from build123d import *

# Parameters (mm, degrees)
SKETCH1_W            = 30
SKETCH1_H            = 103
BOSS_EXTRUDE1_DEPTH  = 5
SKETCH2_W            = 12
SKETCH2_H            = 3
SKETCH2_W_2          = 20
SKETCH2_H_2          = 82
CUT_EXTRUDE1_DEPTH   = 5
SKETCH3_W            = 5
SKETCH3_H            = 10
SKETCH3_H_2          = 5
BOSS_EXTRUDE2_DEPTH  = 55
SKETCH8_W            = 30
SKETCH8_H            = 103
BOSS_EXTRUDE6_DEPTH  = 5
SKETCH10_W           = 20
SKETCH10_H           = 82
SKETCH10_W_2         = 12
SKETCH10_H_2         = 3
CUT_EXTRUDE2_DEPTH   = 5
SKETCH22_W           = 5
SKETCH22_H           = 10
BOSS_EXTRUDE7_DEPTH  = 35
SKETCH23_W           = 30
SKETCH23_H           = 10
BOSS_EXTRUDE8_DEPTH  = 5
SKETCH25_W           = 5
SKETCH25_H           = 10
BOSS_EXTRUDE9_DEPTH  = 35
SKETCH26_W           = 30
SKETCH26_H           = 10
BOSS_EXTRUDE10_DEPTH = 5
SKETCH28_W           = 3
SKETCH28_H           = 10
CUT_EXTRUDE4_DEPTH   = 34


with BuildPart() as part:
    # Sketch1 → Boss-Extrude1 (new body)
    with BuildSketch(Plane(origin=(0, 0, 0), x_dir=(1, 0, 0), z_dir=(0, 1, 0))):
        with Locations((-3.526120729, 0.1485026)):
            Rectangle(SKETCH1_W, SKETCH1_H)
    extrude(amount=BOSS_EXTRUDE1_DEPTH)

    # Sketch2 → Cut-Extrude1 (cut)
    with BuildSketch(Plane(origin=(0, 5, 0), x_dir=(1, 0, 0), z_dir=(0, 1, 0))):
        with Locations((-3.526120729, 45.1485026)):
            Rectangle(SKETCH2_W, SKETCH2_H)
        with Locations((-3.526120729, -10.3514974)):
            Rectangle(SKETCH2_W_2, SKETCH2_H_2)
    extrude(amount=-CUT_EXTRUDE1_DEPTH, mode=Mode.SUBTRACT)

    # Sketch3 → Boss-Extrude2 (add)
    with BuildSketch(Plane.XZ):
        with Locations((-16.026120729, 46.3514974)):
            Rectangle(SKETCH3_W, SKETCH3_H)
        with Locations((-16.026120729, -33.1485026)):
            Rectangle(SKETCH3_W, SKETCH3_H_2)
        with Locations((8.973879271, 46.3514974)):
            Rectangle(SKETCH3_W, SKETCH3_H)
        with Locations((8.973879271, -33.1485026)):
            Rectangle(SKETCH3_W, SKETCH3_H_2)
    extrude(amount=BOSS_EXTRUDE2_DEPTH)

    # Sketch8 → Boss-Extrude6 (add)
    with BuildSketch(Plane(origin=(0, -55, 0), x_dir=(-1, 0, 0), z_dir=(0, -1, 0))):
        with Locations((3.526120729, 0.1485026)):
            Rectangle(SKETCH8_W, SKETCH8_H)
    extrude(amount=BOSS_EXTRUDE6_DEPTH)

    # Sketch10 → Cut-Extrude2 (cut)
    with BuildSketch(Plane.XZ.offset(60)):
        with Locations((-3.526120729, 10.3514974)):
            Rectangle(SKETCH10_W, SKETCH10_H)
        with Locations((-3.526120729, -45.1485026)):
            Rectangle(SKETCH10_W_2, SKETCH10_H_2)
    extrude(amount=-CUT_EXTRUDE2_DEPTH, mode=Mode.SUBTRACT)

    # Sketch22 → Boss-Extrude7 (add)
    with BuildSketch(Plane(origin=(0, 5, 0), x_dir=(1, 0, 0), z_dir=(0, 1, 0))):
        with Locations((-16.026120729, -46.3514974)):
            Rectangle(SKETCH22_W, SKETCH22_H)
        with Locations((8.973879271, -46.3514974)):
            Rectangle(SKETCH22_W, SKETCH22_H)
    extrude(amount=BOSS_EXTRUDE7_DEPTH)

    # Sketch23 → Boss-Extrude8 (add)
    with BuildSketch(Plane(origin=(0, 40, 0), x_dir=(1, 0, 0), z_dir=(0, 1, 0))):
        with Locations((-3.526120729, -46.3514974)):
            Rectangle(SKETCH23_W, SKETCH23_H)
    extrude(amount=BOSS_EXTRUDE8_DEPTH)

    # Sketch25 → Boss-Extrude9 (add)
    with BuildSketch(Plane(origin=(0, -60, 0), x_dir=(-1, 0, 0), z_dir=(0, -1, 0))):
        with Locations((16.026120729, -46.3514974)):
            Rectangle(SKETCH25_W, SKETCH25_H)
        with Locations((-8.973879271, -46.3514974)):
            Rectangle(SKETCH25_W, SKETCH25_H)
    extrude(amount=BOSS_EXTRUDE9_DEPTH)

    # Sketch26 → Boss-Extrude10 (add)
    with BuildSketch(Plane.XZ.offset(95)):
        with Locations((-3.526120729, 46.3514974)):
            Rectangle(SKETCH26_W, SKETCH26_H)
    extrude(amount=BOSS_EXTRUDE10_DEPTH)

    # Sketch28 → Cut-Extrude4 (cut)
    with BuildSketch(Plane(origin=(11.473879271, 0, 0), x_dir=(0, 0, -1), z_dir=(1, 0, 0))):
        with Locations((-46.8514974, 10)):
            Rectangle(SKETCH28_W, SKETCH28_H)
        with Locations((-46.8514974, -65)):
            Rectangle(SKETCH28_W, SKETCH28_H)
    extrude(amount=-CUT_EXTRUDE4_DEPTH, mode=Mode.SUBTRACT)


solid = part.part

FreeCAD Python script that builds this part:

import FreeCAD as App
import Part
import Sketcher

doc = App.newDocument("Part")
params = doc.addObject("Spreadsheet::Sheet", "Params")
for row, (alias, value) in enumerate([
    ("sketch1_width", "30 mm"),
    ("sketch1_height", "103 mm"),
    ("pad1_length", "5 mm"),
    ("sketch2_width", "12 mm"),
    ("sketch2_width2", "20 mm"),
    ("sketch2_height", "3 mm"),
    ("sketch2_height2", "82 mm"),
    ("pocket1_length", "5 mm"),
    ("sketch3_width", "5 mm"),
    ("sketch3_height", "10 mm"),
    ("pad2_length", "55 mm"),
    ("sketch4_width", "30 mm"),
    ("sketch4_height", "103 mm"),
    ("pad3_length", "5 mm"),
    ("sketch5_width", "20 mm"),
    ("sketch5_width2", "12 mm"),
    ("sketch5_height", "82 mm"),
    ("sketch5_height2", "3 mm"),
    ("pocket2_length", "5 mm"),
    ("sketch6_width", "5 mm"),
    ("sketch6_height", "10 mm"),
    ("pad4_length", "35 mm"),
    ("sketch7_width", "30 mm"),
    ("sketch7_height", "10 mm"),
    ("pad5_length", "5 mm"),
    ("sketch8_width", "5 mm"),
    ("sketch8_height", "10 mm"),
    ("pad6_length", "35 mm"),
    ("sketch9_width", "30 mm"),
    ("sketch9_height", "10 mm"),
    ("pad7_length", "5 mm"),
    ("sketch10_width", "10 mm"),
    ("sketch10_height", "3 mm"),
    ("pocket3_length", "34 mm"),
], start=1):
    params.set(f"A{row}", alias)
    params.set(f"B{row}", "=" + value)
    params.setAlias(f"B{row}", alias)

body = doc.addObject("PartDesign::Body", "Body")

# Sketch on XZ plane
sketch1 = body.newObject("Sketcher::SketchObject", "Sketch")
sketch1.AttachmentSupport = (doc.getObject("XZ_Plane"), [""])
sketch1.MapMode = "FlatFace"
sketch1.addGeometry(Part.LineSegment(App.Vector(-19, -52, 0), App.Vector(-19, 51, 0)), False)
sketch1.addGeometry(Part.LineSegment(App.Vector(-19, 51, 0), App.Vector(11, 51, 0)), False)
sketch1.addGeometry(Part.LineSegment(App.Vector(11, 51, 0), App.Vector(11, -52, 0)), False)
sketch1.addGeometry(Part.LineSegment(App.Vector(11, -52, 0), App.Vector(-19, -52, 0)), False)
sketch1.addConstraint(Sketcher.Constraint("Coincident", 0, 2, 1, 1))
sketch1.addConstraint(Sketcher.Constraint("Coincident", 1, 2, 2, 1))
sketch1.addConstraint(Sketcher.Constraint("Coincident", 2, 2, 3, 1))
sketch1.addConstraint(Sketcher.Constraint("Coincident", 3, 2, 0, 1))
sketch1.addConstraint(Sketcher.Constraint("Vertical", 0))
sketch1.addConstraint(Sketcher.Constraint("Horizontal", 1))
sketch1.addConstraint(Sketcher.Constraint("Vertical", 2))
sketch1.addConstraint(Sketcher.Constraint("Horizontal", 3))
sketch1.addConstraint(Sketcher.Constraint("DistanceX", 1, 1, 1, 2, 30.0))
sketch1.addConstraint(Sketcher.Constraint("DistanceY", 0, 1, 0, 2, 103.0))
sketch1.addConstraint(Sketcher.Constraint("DistanceX", 0, 2, -1, 1, 18.526121))
sketch1.addConstraint(Sketcher.Constraint("DistanceY", -1, 1, 0, 2, 51.351497))
sketch1.setExpression("Constraints[8]", "Params.sketch1_width")
sketch1.setExpression("Constraints[9]", "Params.sketch1_height")
pad1 = body.newObject("PartDesign::Pad", "Pad")
pad1.Profile = sketch1
pad1.setExpression("Length", "Params.pad1_length")
pad1.Reversed = True

# Sketch on XZ plane
sketch2 = body.newObject("Sketcher::SketchObject", "Sketch001")
sketch2.AttachmentSupport = (doc.getObject("XZ_Plane"), [""])
sketch2.MapMode = "FlatFace"
sketch2.AttachmentOffset = App.Placement(App.Vector(0, 0, -5), App.Rotation())
sketch2.addGeometry(Part.LineSegment(App.Vector(-9.5, -46.6, 0), App.Vector(-9.5, -43.6, 0)), False)
sketch2.addGeometry(Part.LineSegment(App.Vector(-9.5, -43.6, 0), App.Vector(2.5, -43.6, 0)), False)
sketch2.addGeometry(Part.LineSegment(App.Vector(2.5, -43.6, 0), App.Vector(2.5, -46.6, 0)), False)
sketch2.addGeometry(Part.LineSegment(App.Vector(2.5, -46.6, 0), App.Vector(-9.5, -46.6, 0)), False)
sketch2.addGeometry(Part.LineSegment(App.Vector(-13.5, -30.6, 0), App.Vector(-13.5, 51.4, 0)), False)
sketch2.addGeometry(Part.LineSegment(App.Vector(-13.5, 51.4, 0), App.Vector(6.5, 51.4, 0)), False)
sketch2.addGeometry(Part.LineSegment(App.Vector(6.5, 51.4, 0), App.Vector(6.5, -30.6, 0)), False)
sketch2.addGeometry(Part.LineSegment(App.Vector(6.5, -30.6, 0), App.Vector(-13.5, -30.6, 0)), False)
sketch2.addConstraint(Sketcher.Constraint("Coincident", 0, 2, 1, 1))
sketch2.addConstraint(Sketcher.Constraint("Coincident", 1, 2, 2, 1))
sketch2.addConstraint(Sketcher.Constraint("Coincident", 2, 2, 3, 1))
sketch2.addConstraint(Sketcher.Constraint("Coincident", 3, 2, 0, 1))
sketch2.addConstraint(Sketcher.Constraint("Coincident", 4, 2, 5, 1))
sketch2.addConstraint(Sketcher.Constraint("Coincident", 5, 2, 6, 1))
sketch2.addConstraint(Sketcher.Constraint("Coincident", 6, 2, 7, 1))
sketch2.addConstraint(Sketcher.Constraint("Coincident", 7, 2, 4, 1))
sketch2.addConstraint(Sketcher.Constraint("Vertical", 0))
sketch2.addConstraint(Sketcher.Constraint("Horizontal", 1))
sketch2.addConstraint(Sketcher.Constraint("Vertical", 2))
sketch2.addConstraint(Sketcher.Constraint("Horizontal", 3))
sketch2.addConstraint(Sketcher.Constraint("Vertical", 4))
sketch2.addConstraint(Sketcher.Constraint("Horizontal", 5))
sketch2.addConstraint(Sketcher.Constraint("Vertical", 6))
sketch2.addConstraint(Sketcher.Constraint("Horizontal", 7))
sketch2.addConstraint(Sketcher.Constraint("DistanceX", 1, 1, 1, 2, 12.0))
sketch2.addConstraint(Sketcher.Constraint("DistanceX", 5, 1, 5, 2, 20.0))
sketch2.addConstraint(Sketcher.Constraint("DistanceY", 0, 1, 0, 2, 3.0))
sketch2.addConstraint(Sketcher.Constraint("DistanceY", 4, 1, 4, 2, 82.0))
sketch2.addConstraint(Sketcher.Constraint("DistanceX", 4, 2, 0, 2, 4.0))
sketch2.addConstraint(Sketcher.Constraint("DistanceY", 0, 2, 4, 2, 95.0))
sketch2.addConstraint(Sketcher.Constraint("DistanceX", 0, 2, -1, 1, 9.526121))
sketch2.addConstraint(Sketcher.Constraint("DistanceY", 0, 2, -1, 1, 43.648503))
sketch2.setExpression("Constraints[16]", "Params.sketch2_width")
sketch2.setExpression("Constraints[17]", "Params.sketch2_width2")
sketch2.setExpression("Constraints[18]", "Params.sketch2_height")
sketch2.setExpression("Constraints[19]", "Params.sketch2_height2")
pocket1 = body.newObject("PartDesign::Pocket", "Pocket")
pocket1.Profile = sketch2
pocket1.setExpression("Length", "Params.pocket1_length")
pocket1.Reversed = True

# Sketch on XZ plane
sketch3 = body.newObject("Sketcher::SketchObject", "Sketch002")
sketch3.AttachmentSupport = (doc.getObject("XZ_Plane"), [""])
sketch3.MapMode = "FlatFace"
sketch3.addGeometry(Part.LineSegment(App.Vector(-18.5, 51.4, 0), App.Vector(-18.5, 41.4, 0)), False)
sketch3.addGeometry(Part.LineSegment(App.Vector(-18.5, 41.4, 0), App.Vector(-13.5, 41.4, 0)), False)
sketch3.addGeometry(Part.LineSegment(App.Vector(-13.5, 41.4, 0), App.Vector(-13.5, 51.4, 0)), False)
sketch3.addGeometry(Part.LineSegment(App.Vector(-13.5, 51.4, 0), App.Vector(-18.5, 51.4, 0)), False)
sketch3.addGeometry(Part.LineSegment(App.Vector(-18.5, -30.6, 0), App.Vector(-18.5, -35.6, 0)), False)
sketch3.addGeometry(Part.LineSegment(App.Vector(-18.5, -35.6, 0), App.Vector(-13.5, -35.6, 0)), False)
sketch3.addGeometry(Part.LineSegment(App.Vector(-13.5, -35.6, 0), App.Vector(-13.5, -30.6, 0)), False)
sketch3.addGeometry(Part.LineSegment(App.Vector(-13.5, -30.6, 0), App.Vector(-18.5, -30.6, 0)), False)
sketch3.addGeometry(Part.LineSegment(App.Vector(6.5, 51.4, 0), App.Vector(6.5, 41.4, 0)), False)
sketch3.addGeometry(Part.LineSegment(App.Vector(6.5, 41.4, 0), App.Vector(11.5, 41.4, 0)), False)
sketch3.addGeometry(Part.LineSegment(App.Vector(11.5, 41.4, 0), App.Vector(11.5, 51.4, 0)), False)
sketch3.addGeometry(Part.LineSegment(App.Vector(11.5, 51.4, 0), App.Vector(6.5, 51.4, 0)), False)
sketch3.addGeometry(Part.LineSegment(App.Vector(6.5, -30.6, 0), App.Vector(6.5, -35.6, 0)), False)
sketch3.addGeometry(Part.LineSegment(App.Vector(6.5, -35.6, 0), App.Vector(11.5, -35.6, 0)), False)
sketch3.addGeometry(Part.LineSegment(App.Vector(11.5, -35.6, 0), App.Vector(11.5, -30.6, 0)), False)
sketch3.addGeometry(Part.LineSegment(App.Vector(11.5, -30.6, 0), App.Vector(6.5, -30.6, 0)), False)
sketch3.addConstraint(Sketcher.Constraint("Coincident", 0, 2, 1, 1))
sketch3.addConstraint(Sketcher.Constraint("Coincident", 1, 2, 2, 1))
sketch3.addConstraint(Sketcher.Constraint("Coincident", 2, 2, 3, 1))
sketch3.addConstraint(Sketcher.Constraint("Coincident", 3, 2, 0, 1))
sketch3.addConstraint(Sketcher.Constraint("Coincident", 4, 2, 5, 1))
sketch3.addConstraint(Sketcher.Constraint("Coincident", 5, 2, 6, 1))
sketch3.addConstraint(Sketcher.Constraint("Coincident", 6, 2, 7, 1))
sketch3.addConstraint(Sketcher.Constraint("Coincident", 7, 2, 4, 1))
sketch3.addConstraint(Sketcher.Constraint("Coincident", 8, 2, 9, 1))
sketch3.addConstraint(Sketcher.Constraint("Coincident", 9, 2, 10, 1))
sketch3.addConstraint(Sketcher.Constraint("Coincident", 10, 2, 11, 1))
sketch3.addConstraint(Sketcher.Constraint("Coincident", 11, 2, 8, 1))
sketch3.addConstraint(Sketcher.Constraint("Coincident", 12, 2, 13, 1))
sketch3.addConstraint(Sketcher.Constraint("Coincident", 13, 2, 14, 1))
sketch3.addConstraint(Sketcher.Constraint("Coincident", 14, 2, 15, 1))
sketch3.addConstraint(Sketcher.Constraint("Coincident", 15, 2, 12, 1))
sketch3.addConstraint(Sketcher.Constraint("Vertical", 0))
sketch3.addConstraint(Sketcher.Constraint("Horizontal", 1))
sketch3.addConstraint(Sketcher.Constraint("Vertical", 2))
sketch3.addConstraint(Sketcher.Constraint("Horizontal", 3))
sketch3.addConstraint(Sketcher.Constraint("Vertical", 4))
sketch3.addConstraint(Sketcher.Constraint("Horizontal", 5))
sketch3.addConstraint(Sketcher.Constraint("Vertical", 6))
sketch3.addConstraint(Sketcher.Constraint("Horizontal", 7))
sketch3.addConstraint(Sketcher.Constraint("Vertical", 8))
sketch3.addConstraint(Sketcher.Constraint("Horizontal", 9))
sketch3.addConstraint(Sketcher.Constraint("Vertical", 10))
sketch3.addConstraint(Sketcher.Constraint("Horizontal", 11))
sketch3.addConstraint(Sketcher.Constraint("Vertical", 12))
sketch3.addConstraint(Sketcher.Constraint("Horizontal", 13))
sketch3.addConstraint(Sketcher.Constraint("Vertical", 14))
sketch3.addConstraint(Sketcher.Constraint("Horizontal", 15))
sketch3.addConstraint(Sketcher.Constraint("Horizontal", 1, 2, 8, 2))
sketch3.addConstraint(Sketcher.Constraint("Horizontal", 3, 2, 10, 2))
sketch3.addConstraint(Sketcher.Constraint("Horizontal", 5, 2, 12, 2))
sketch3.addConstraint(Sketcher.Constraint("Horizontal", 7, 2, 14, 2))
sketch3.addConstraint(Sketcher.Constraint("Vertical", 3, 2, 4, 2))
sketch3.addConstraint(Sketcher.Constraint("Vertical", 2, 2, 5, 2))
sketch3.addConstraint(Sketcher.Constraint("Vertical", 11, 2, 12, 2))
sketch3.addConstraint(Sketcher.Constraint("Vertical", 10, 2, 13, 2))
sketch3.addConstraint(Sketcher.Constraint("Equal", 7, 9))
sketch3.addConstraint(Sketcher.Constraint("Equal", 15, 4))
sketch3.addConstraint(Sketcher.Constraint("DistanceX", 1, 1, 1, 2, 5.0))
sketch3.addConstraint(Sketcher.Constraint("DistanceY", 0, 2, 0, 1, 10.0))
sketch3.addConstraint(Sketcher.Constraint("DistanceY", 4, 2, 0, 2, 77.0))
sketch3.addConstraint(Sketcher.Constraint("DistanceX", 1, 2, 8, 2, 20.0))
sketch3.addConstraint(Sketcher.Constraint("DistanceX", 0, 2, -1, 1, 18.526121))
sketch3.addConstraint(Sketcher.Constraint("DistanceY", -1, 1, 0, 2, 41.351497))
sketch3.setExpression("Constraints[42]", "Params.sketch3_width")
sketch3.setExpression("Constraints[43]", "Params.sketch3_height")
pad2 = body.newObject("PartDesign::Pad", "Pad001")
pad2.Profile = sketch3
pad2.setExpression("Length", "Params.pad2_length")

# Sketch on XZ plane
sketch4 = body.newObject("Sketcher::SketchObject", "Sketch003")
sketch4.AttachmentSupport = (doc.getObject("XZ_Plane"), [""])
sketch4.MapMode = "FlatFace"
sketch4.AttachmentOffset = App.Placement(App.Vector(0, 0, 55), App.Rotation())
sketch4.addGeometry(Part.LineSegment(App.Vector(11, -52, 0), App.Vector(11, 51, 0)), False)
sketch4.addGeometry(Part.LineSegment(App.Vector(11, 51, 0), App.Vector(-19, 51, 0)), False)
sketch4.addGeometry(Part.LineSegment(App.Vector(-19, 51, 0), App.Vector(-19, -52, 0)), False)
sketch4.addGeometry(Part.LineSegment(App.Vector(-19, -52, 0), App.Vector(11, -52, 0)), False)
sketch4.addConstraint(Sketcher.Constraint("Coincident", 0, 2, 1, 1))
sketch4.addConstraint(Sketcher.Constraint("Coincident", 1, 2, 2, 1))
sketch4.addConstraint(Sketcher.Constraint("Coincident", 2, 2, 3, 1))
sketch4.addConstraint(Sketcher.Constraint("Coincident", 3, 2, 0, 1))
sketch4.addConstraint(Sketcher.Constraint("Vertical", 0))
sketch4.addConstraint(Sketcher.Constraint("Horizontal", 1))
sketch4.addConstraint(Sketcher.Constraint("Vertical", 2))
sketch4.addConstraint(Sketcher.Constraint("Horizontal", 3))
sketch4.addConstraint(Sketcher.Constraint("DistanceX", 1, 2, 1, 1, 30.0))
sketch4.addConstraint(Sketcher.Constraint("DistanceY", 0, 1, 0, 2, 103.0))
sketch4.addConstraint(Sketcher.Constraint("DistanceX", -1, 1, 0, 2, 11.473879))
sketch4.addConstraint(Sketcher.Constraint("DistanceY", -1, 1, 0, 2, 51.351497))
sketch4.setExpression("Constraints[8]", "Params.sketch4_width")
sketch4.setExpression("Constraints[9]", "Params.sketch4_height")
pad3 = body.newObject("PartDesign::Pad", "Pad002")
pad3.Profile = sketch4
pad3.setExpression("Length", "Params.pad3_length")

# Sketch on XZ plane
sketch5 = body.newObject("Sketcher::SketchObject", "Sketch004")
sketch5.AttachmentSupport = (doc.getObject("XZ_Plane"), [""])
sketch5.MapMode = "FlatFace"
sketch5.AttachmentOffset = App.Placement(App.Vector(0, 0, 60), App.Rotation())
sketch5.addGeometry(Part.LineSegment(App.Vector(-13.5, 51.4, 0), App.Vector(-13.5, -30.6, 0)), False)
sketch5.addGeometry(Part.LineSegment(App.Vector(-13.5, -30.6, 0), App.Vector(6.5, -30.6, 0)), False)
sketch5.addGeometry(Part.LineSegment(App.Vector(6.5, -30.6, 0), App.Vector(6.5, 51.4, 0)), False)
sketch5.addGeometry(Part.LineSegment(App.Vector(6.5, 51.4, 0), App.Vector(-13.5, 51.4, 0)), False)
sketch5.addGeometry(Part.LineSegment(App.Vector(-9.5, -43.6, 0), App.Vector(-9.5, -46.6, 0)), False)
sketch5.addGeometry(Part.LineSegment(App.Vector(-9.5, -46.6, 0), App.Vector(2.5, -46.6, 0)), False)
sketch5.addGeometry(Part.LineSegment(App.Vector(2.5, -46.6, 0), App.Vector(2.5, -43.6, 0)), False)
sketch5.addGeometry(Part.LineSegment(App.Vector(2.5, -43.6, 0), App.Vector(-9.5, -43.6, 0)), False)
sketch5.addConstraint(Sketcher.Constraint("Coincident", 0, 2, 1, 1))
sketch5.addConstraint(Sketcher.Constraint("Coincident", 1, 2, 2, 1))
sketch5.addConstraint(Sketcher.Constraint("Coincident", 2, 2, 3, 1))
sketch5.addConstraint(Sketcher.Constraint("Coincident", 3, 2, 0, 1))
sketch5.addConstraint(Sketcher.Constraint("Coincident", 4, 2, 5, 1))
sketch5.addConstraint(Sketcher.Constraint("Coincident", 5, 2, 6, 1))
sketch5.addConstraint(Sketcher.Constraint("Coincident", 6, 2, 7, 1))
sketch5.addConstraint(Sketcher.Constraint("Coincident", 7, 2, 4, 1))
sketch5.addConstraint(Sketcher.Constraint("Vertical", 0))
sketch5.addConstraint(Sketcher.Constraint("Horizontal", 1))
sketch5.addConstraint(Sketcher.Constraint("Vertical", 2))
sketch5.addConstraint(Sketcher.Constraint("Horizontal", 3))
sketch5.addConstraint(Sketcher.Constraint("Vertical", 4))
sketch5.addConstraint(Sketcher.Constraint("Horizontal", 5))
sketch5.addConstraint(Sketcher.Constraint("Vertical", 6))
sketch5.addConstraint(Sketcher.Constraint("Horizontal", 7))
sketch5.addConstraint(Sketcher.Constraint("DistanceX", 1, 1, 1, 2, 20.0))
sketch5.addConstraint(Sketcher.Constraint("DistanceX", 5, 1, 5, 2, 12.0))
sketch5.addConstraint(Sketcher.Constraint("DistanceY", 0, 2, 0, 1, 82.0))
sketch5.addConstraint(Sketcher.Constraint("DistanceY", 4, 2, 4, 1, 3.0))
sketch5.addConstraint(Sketcher.Constraint("DistanceX", 0, 2, 4, 2, 4.0))
sketch5.addConstraint(Sketcher.Constraint("DistanceY", 4, 2, 0, 2, 16.0))
sketch5.addConstraint(Sketcher.Constraint("DistanceX", 0, 2, -1, 1, 13.526121))
sketch5.addConstraint(Sketcher.Constraint("DistanceY", 0, 2, -1, 1, 30.648503))
sketch5.setExpression("Constraints[16]", "Params.sketch5_width")
sketch5.setExpression("Constraints[17]", "Params.sketch5_width2")
sketch5.setExpression("Constraints[18]", "Params.sketch5_height")
sketch5.setExpression("Constraints[19]", "Params.sketch5_height2")
pocket2 = body.newObject("PartDesign::Pocket", "Pocket001")
pocket2.Profile = sketch5
pocket2.setExpression("Length", "Params.pocket2_length")

# Sketch on XZ plane
sketch6 = body.newObject("Sketcher::SketchObject", "Sketch005")
sketch6.AttachmentSupport = (doc.getObject("XZ_Plane"), [""])
sketch6.MapMode = "FlatFace"
sketch6.AttachmentOffset = App.Placement(App.Vector(0, 0, -5), App.Rotation())
sketch6.addGeometry(Part.LineSegment(App.Vector(-18.5, 41.4, 0), App.Vector(-18.5, 51.4, 0)), False)
sketch6.addGeometry(Part.LineSegment(App.Vector(-18.5, 51.4, 0), App.Vector(-13.5, 51.4, 0)), False)
sketch6.addGeometry(Part.LineSegment(App.Vector(-13.5, 51.4, 0), App.Vector(-13.5, 41.4, 0)), False)
sketch6.addGeometry(Part.LineSegment(App.Vector(-13.5, 41.4, 0), App.Vector(-18.5, 41.4, 0)), False)
sketch6.addGeometry(Part.LineSegment(App.Vector(6.5, 41.4, 0), App.Vector(6.5, 51.4, 0)), False)
sketch6.addGeometry(Part.LineSegment(App.Vector(6.5, 51.4, 0), App.Vector(11.5, 51.4, 0)), False)
sketch6.addGeometry(Part.LineSegment(App.Vector(11.5, 51.4, 0), App.Vector(11.5, 41.4, 0)), False)
sketch6.addGeometry(Part.LineSegment(App.Vector(11.5, 41.4, 0), App.Vector(6.5, 41.4, 0)), False)
sketch6.addConstraint(Sketcher.Constraint("Coincident", 0, 2, 1, 1))
sketch6.addConstraint(Sketcher.Constraint("Coincident", 1, 2, 2, 1))
sketch6.addConstraint(Sketcher.Constraint("Coincident", 2, 2, 3, 1))
sketch6.addConstraint(Sketcher.Constraint("Coincident", 3, 2, 0, 1))
sketch6.addConstraint(Sketcher.Constraint("Coincident", 4, 2, 5, 1))
sketch6.addConstraint(Sketcher.Constraint("Coincident", 5, 2, 6, 1))
sketch6.addConstraint(Sketcher.Constraint("Coincident", 6, 2, 7, 1))
sketch6.addConstraint(Sketcher.Constraint("Coincident", 7, 2, 4, 1))
sketch6.addConstraint(Sketcher.Constraint("Vertical", 0))
sketch6.addConstraint(Sketcher.Constraint("Horizontal", 1))
sketch6.addConstraint(Sketcher.Constraint("Vertical", 2))
sketch6.addConstraint(Sketcher.Constraint("Horizontal", 3))
sketch6.addConstraint(Sketcher.Constraint("Vertical", 4))
sketch6.addConstraint(Sketcher.Constraint("Horizontal", 5))
sketch6.addConstraint(Sketcher.Constraint("Vertical", 6))
sketch6.addConstraint(Sketcher.Constraint("Horizontal", 7))
sketch6.addConstraint(Sketcher.Constraint("Horizontal", 1, 2, 4, 2))
sketch6.addConstraint(Sketcher.Constraint("Horizontal", 3, 2, 6, 2))
sketch6.addConstraint(Sketcher.Constraint("Equal", 3, 5))
sketch6.addConstraint(Sketcher.Constraint("DistanceX", 1, 1, 1, 2, 5.0))
sketch6.addConstraint(Sketcher.Constraint("DistanceY", 0, 1, 0, 2, 10.0))
sketch6.addConstraint(Sketcher.Constraint("DistanceX", 1, 2, 4, 2, 20.0))
sketch6.addConstraint(Sketcher.Constraint("DistanceX", 0, 2, -1, 1, 18.526121))
sketch6.addConstraint(Sketcher.Constraint("DistanceY", -1, 1, 0, 2, 51.351497))
sketch6.setExpression("Constraints[19]", "Params.sketch6_width")
sketch6.setExpression("Constraints[20]", "Params.sketch6_height")
pad4 = body.newObject("PartDesign::Pad", "Pad003")
pad4.Profile = sketch6
pad4.setExpression("Length", "Params.pad4_length")
pad4.Reversed = True

# Sketch on XZ plane
sketch7 = body.newObject("Sketcher::SketchObject", "Sketch006")
sketch7.AttachmentSupport = (doc.getObject("XZ_Plane"), [""])
sketch7.MapMode = "FlatFace"
sketch7.AttachmentOffset = App.Placement(App.Vector(0, 0, -40), App.Rotation())
sketch7.addGeometry(Part.LineSegment(App.Vector(-19, 41, 0), App.Vector(-19, 51, 0)), False)
sketch7.addGeometry(Part.LineSegment(App.Vector(-19, 51, 0), App.Vector(11, 51, 0)), False)
sketch7.addGeometry(Part.LineSegment(App.Vector(11, 51, 0), App.Vector(11, 41, 0)), False)
sketch7.addGeometry(Part.LineSegment(App.Vector(11, 41, 0), App.Vector(-19, 41, 0)), False)
sketch7.addConstraint(Sketcher.Constraint("Coincident", 0, 2, 1, 1))
sketch7.addConstraint(Sketcher.Constraint("Coincident", 1, 2, 2, 1))
sketch7.addConstraint(Sketcher.Constraint("Coincident", 2, 2, 3, 1))
sketch7.addConstraint(Sketcher.Constraint("Coincident", 3, 2, 0, 1))
sketch7.addConstraint(Sketcher.Constraint("Vertical", 0))
sketch7.addConstraint(Sketcher.Constraint("Horizontal", 1))
sketch7.addConstraint(Sketcher.Constraint("Vertical", 2))
sketch7.addConstraint(Sketcher.Constraint("Horizontal", 3))
sketch7.addConstraint(Sketcher.Constraint("DistanceX", 1, 1, 1, 2, 30.0))
sketch7.addConstraint(Sketcher.Constraint("DistanceY", 0, 1, 0, 2, 10.0))
sketch7.addConstraint(Sketcher.Constraint("DistanceX", 0, 2, -1, 1, 18.526121))
sketch7.addConstraint(Sketcher.Constraint("DistanceY", -1, 1, 0, 2, 51.351497))
sketch7.setExpression("Constraints[8]", "Params.sketch7_width")
sketch7.setExpression("Constraints[9]", "Params.sketch7_height")
pad5 = body.newObject("PartDesign::Pad", "Pad004")
pad5.Profile = sketch7
pad5.setExpression("Length", "Params.pad5_length")
pad5.Reversed = True

# Sketch on XZ plane
sketch8 = body.newObject("Sketcher::SketchObject", "Sketch007")
sketch8.AttachmentSupport = (doc.getObject("XZ_Plane"), [""])
sketch8.MapMode = "FlatFace"
sketch8.AttachmentOffset = App.Placement(App.Vector(0, 0, 60), App.Rotation())
sketch8.addGeometry(Part.LineSegment(App.Vector(-13.5, 41.4, 0), App.Vector(-13.5, 51.4, 0)), False)
sketch8.addGeometry(Part.LineSegment(App.Vector(-13.5, 51.4, 0), App.Vector(-18.5, 51.4, 0)), False)
sketch8.addGeometry(Part.LineSegment(App.Vector(-18.5, 51.4, 0), App.Vector(-18.5, 41.4, 0)), False)
sketch8.addGeometry(Part.LineSegment(App.Vector(-18.5, 41.4, 0), App.Vector(-13.5, 41.4, 0)), False)
sketch8.addGeometry(Part.LineSegment(App.Vector(11.5, 41.4, 0), App.Vector(11.5, 51.4, 0)), False)
sketch8.addGeometry(Part.LineSegment(App.Vector(11.5, 51.4, 0), App.Vector(6.5, 51.4, 0)), False)
sketch8.addGeometry(Part.LineSegment(App.Vector(6.5, 51.4, 0), App.Vector(6.5, 41.4, 0)), False)
sketch8.addGeometry(Part.LineSegment(App.Vector(6.5, 41.4, 0), App.Vector(11.5, 41.4, 0)), False)
sketch8.addConstraint(Sketcher.Constraint("Coincident", 0, 2, 1, 1))
sketch8.addConstraint(Sketcher.Constraint("Coincident", 1, 2, 2, 1))
sketch8.addConstraint(Sketcher.Constraint("Coincident", 2, 2, 3, 1))
sketch8.addConstraint(Sketcher.Constraint("Coincident", 3, 2, 0, 1))
sketch8.addConstraint(Sketcher.Constraint("Coincident", 4, 2, 5, 1))
sketch8.addConstraint(Sketcher.Constraint("Coincident", 5, 2, 6, 1))
sketch8.addConstraint(Sketcher.Constraint("Coincident", 6, 2, 7, 1))
sketch8.addConstraint(Sketcher.Constraint("Coincident", 7, 2, 4, 1))
sketch8.addConstraint(Sketcher.Constraint("Vertical", 0))
sketch8.addConstraint(Sketcher.Constraint("Horizontal", 1))
sketch8.addConstraint(Sketcher.Constraint("Vertical", 2))
sketch8.addConstraint(Sketcher.Constraint("Horizontal", 3))
sketch8.addConstraint(Sketcher.Constraint("Vertical", 4))
sketch8.addConstraint(Sketcher.Constraint("Horizontal", 5))
sketch8.addConstraint(Sketcher.Constraint("Vertical", 6))
sketch8.addConstraint(Sketcher.Constraint("Horizontal", 7))
sketch8.addConstraint(Sketcher.Constraint("Horizontal", 1, 2, 4, 2))
sketch8.addConstraint(Sketcher.Constraint("Horizontal", 3, 2, 6, 2))
sketch8.addConstraint(Sketcher.Constraint("Equal", 3, 5))
sketch8.addConstraint(Sketcher.Constraint("DistanceX", 1, 2, 1, 1, 5.0))
sketch8.addConstraint(Sketcher.Constraint("DistanceY", 0, 1, 0, 2, 10.0))
sketch8.addConstraint(Sketcher.Constraint("DistanceX", 0, 2, 4, 2, 25.0))
sketch8.addConstraint(Sketcher.Constraint("DistanceX", 0, 2, -1, 1, 13.526121))
sketch8.addConstraint(Sketcher.Constraint("DistanceY", -1, 1, 0, 2, 51.351497))
sketch8.setExpression("Constraints[19]", "Params.sketch8_width")
sketch8.setExpression("Constraints[20]", "Params.sketch8_height")
pad6 = body.newObject("PartDesign::Pad", "Pad005")
pad6.Profile = sketch8
pad6.setExpression("Length", "Params.pad6_length")

# Sketch on XZ plane
sketch9 = body.newObject("Sketcher::SketchObject", "Sketch008")
sketch9.AttachmentSupport = (doc.getObject("XZ_Plane"), [""])
sketch9.MapMode = "FlatFace"
sketch9.AttachmentOffset = App.Placement(App.Vector(0, 0, 95), App.Rotation())
sketch9.addGeometry(Part.LineSegment(App.Vector(-19, 51, 0), App.Vector(-19, 41, 0)), False)
sketch9.addGeometry(Part.LineSegment(App.Vector(-19, 41, 0), App.Vector(11, 41, 0)), False)
sketch9.addGeometry(Part.LineSegment(App.Vector(11, 41, 0), App.Vector(11, 51, 0)), False)
sketch9.addGeometry(Part.LineSegment(App.Vector(11, 51, 0), App.Vector(-19, 51, 0)), False)
sketch9.addConstraint(Sketcher.Constraint("Coincident", 0, 2, 1, 1))
sketch9.addConstraint(Sketcher.Constraint("Coincident", 1, 2, 2, 1))
sketch9.addConstraint(Sketcher.Constraint("Coincident", 2, 2, 3, 1))
sketch9.addConstraint(Sketcher.Constraint("Coincident", 3, 2, 0, 1))
sketch9.addConstraint(Sketcher.Constraint("Vertical", 0))
sketch9.addConstraint(Sketcher.Constraint("Horizontal", 1))
sketch9.addConstraint(Sketcher.Constraint("Vertical", 2))
sketch9.addConstraint(Sketcher.Constraint("Horizontal", 3))
sketch9.addConstraint(Sketcher.Constraint("DistanceX", 1, 1, 1, 2, 30.0))
sketch9.addConstraint(Sketcher.Constraint("DistanceY", 0, 2, 0, 1, 10.0))
sketch9.addConstraint(Sketcher.Constraint("DistanceX", 0, 2, -1, 1, 18.526121))
sketch9.addConstraint(Sketcher.Constraint("DistanceY", -1, 1, 0, 2, 41.351497))
sketch9.setExpression("Constraints[8]", "Params.sketch9_width")
sketch9.setExpression("Constraints[9]", "Params.sketch9_height")
pad7 = body.newObject("PartDesign::Pad", "Pad006")
pad7.Profile = sketch9
pad7.setExpression("Length", "Params.pad7_length")

# Sketch on YZ plane
sketch10 = body.newObject("Sketcher::SketchObject", "Sketch009")
sketch10.AttachmentSupport = (doc.getObject("YZ_Plane"), [""])
sketch10.MapMode = "FlatFace"
sketch10.AttachmentOffset = App.Placement(App.Vector(0, 0, 11.473879), App.Rotation())
sketch10.addGeometry(Part.LineSegment(App.Vector(15, 48.4, 0), App.Vector(5, 48.4, 0)), False)
sketch10.addGeometry(Part.LineSegment(App.Vector(5, 48.4, 0), App.Vector(5, 45.4, 0)), False)
sketch10.addGeometry(Part.LineSegment(App.Vector(5, 45.4, 0), App.Vector(15, 45.4, 0)), False)
sketch10.addGeometry(Part.LineSegment(App.Vector(15, 45.4, 0), App.Vector(15, 48.4, 0)), False)
sketch10.addGeometry(Part.LineSegment(App.Vector(-60, 48.4, 0), App.Vector(-70, 48.4, 0)), False)
sketch10.addGeometry(Part.LineSegment(App.Vector(-70, 48.4, 0), App.Vector(-70, 45.4, 0)), False)
sketch10.addGeometry(Part.LineSegment(App.Vector(-70, 45.4, 0), App.Vector(-60, 45.4, 0)), False)
sketch10.addGeometry(Part.LineSegment(App.Vector(-60, 45.4, 0), App.Vector(-60, 48.4, 0)), False)
sketch10.addConstraint(Sketcher.Constraint("Coincident", 0, 2, 1, 1))
sketch10.addConstraint(Sketcher.Constraint("Coincident", 1, 2, 2, 1))
sketch10.addConstraint(Sketcher.Constraint("Coincident", 2, 2, 3, 1))
sketch10.addConstraint(Sketcher.Constraint("Coincident", 3, 2, 0, 1))
sketch10.addConstraint(Sketcher.Constraint("Coincident", 4, 2, 5, 1))
sketch10.addConstraint(Sketcher.Constraint("Coincident", 5, 2, 6, 1))
sketch10.addConstraint(Sketcher.Constraint("Coincident", 6, 2, 7, 1))
sketch10.addConstraint(Sketcher.Constraint("Coincident", 7, 2, 4, 1))
sketch10.addConstraint(Sketcher.Constraint("Horizontal", 0))
sketch10.addConstraint(Sketcher.Constraint("Vertical", 1))
sketch10.addConstraint(Sketcher.Constraint("Horizontal", 2))
sketch10.addConstraint(Sketcher.Constraint("Vertical", 3))
sketch10.addConstraint(Sketcher.Constraint("Horizontal", 4))
sketch10.addConstraint(Sketcher.Constraint("Vertical", 5))
sketch10.addConstraint(Sketcher.Constraint("Horizontal", 6))
sketch10.addConstraint(Sketcher.Constraint("Vertical", 7))
sketch10.addConstraint(Sketcher.Constraint("Horizontal", 3, 2, 4, 2))
sketch10.addConstraint(Sketcher.Constraint("Horizontal", 2, 2, 5, 2))
sketch10.addConstraint(Sketcher.Constraint("Equal", 2, 4))
sketch10.addConstraint(Sketcher.Constraint("DistanceX", 0, 2, 0, 1, 10.0))
sketch10.addConstraint(Sketcher.Constraint("DistanceY", 1, 2, 1, 1, 3.0))
sketch10.addConstraint(Sketcher.Constraint("DistanceX", -1, 1, 0, 2, 5.0))
sketch10.addConstraint(Sketcher.Constraint("DistanceX", 4, 2, -1, 1, 70.0))
sketch10.addConstraint(Sketcher.Constraint("DistanceY", -1, 1, 0, 2, 48.351497))
sketch10.setExpression("Constraints[19]", "Params.sketch10_width")
sketch10.setExpression("Constraints[20]", "Params.sketch10_height")
pocket3 = body.newObject("PartDesign::Pocket", "Pocket002")
pocket3.Profile = sketch10
pocket3.setExpression("Length", "Params.pocket3_length")

doc.recompute()
